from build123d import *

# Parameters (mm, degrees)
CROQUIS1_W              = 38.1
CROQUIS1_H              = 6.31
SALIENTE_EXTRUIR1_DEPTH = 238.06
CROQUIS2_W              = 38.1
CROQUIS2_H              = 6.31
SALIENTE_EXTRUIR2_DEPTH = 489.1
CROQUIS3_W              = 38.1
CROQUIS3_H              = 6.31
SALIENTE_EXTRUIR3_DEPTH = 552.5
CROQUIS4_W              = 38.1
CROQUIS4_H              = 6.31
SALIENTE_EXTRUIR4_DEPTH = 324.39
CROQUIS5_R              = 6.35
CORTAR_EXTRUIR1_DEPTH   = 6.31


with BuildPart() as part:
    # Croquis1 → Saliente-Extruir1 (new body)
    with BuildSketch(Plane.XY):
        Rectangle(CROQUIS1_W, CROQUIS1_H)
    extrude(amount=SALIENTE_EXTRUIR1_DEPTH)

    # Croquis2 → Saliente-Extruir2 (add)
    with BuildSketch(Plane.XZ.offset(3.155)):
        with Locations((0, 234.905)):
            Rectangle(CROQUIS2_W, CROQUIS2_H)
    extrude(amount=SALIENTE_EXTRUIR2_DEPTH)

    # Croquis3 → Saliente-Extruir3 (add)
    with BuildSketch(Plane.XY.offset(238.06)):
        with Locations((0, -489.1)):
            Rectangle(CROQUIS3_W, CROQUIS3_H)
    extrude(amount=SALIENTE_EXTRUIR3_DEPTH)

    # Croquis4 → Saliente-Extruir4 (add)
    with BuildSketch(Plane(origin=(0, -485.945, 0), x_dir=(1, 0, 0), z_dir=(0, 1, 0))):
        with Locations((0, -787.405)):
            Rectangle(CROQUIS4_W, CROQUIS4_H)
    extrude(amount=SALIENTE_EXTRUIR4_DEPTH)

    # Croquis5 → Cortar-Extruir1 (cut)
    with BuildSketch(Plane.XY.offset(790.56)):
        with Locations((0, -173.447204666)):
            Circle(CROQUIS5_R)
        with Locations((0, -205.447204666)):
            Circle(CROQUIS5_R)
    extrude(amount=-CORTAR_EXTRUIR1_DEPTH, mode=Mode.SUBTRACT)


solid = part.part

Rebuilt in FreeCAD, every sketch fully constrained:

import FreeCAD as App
import Part
import Sketcher

V = App.Vector
Q = App.Units.Quantity


def add_polygon(sketch, points):
    """Adds a closed chain of lines whose ends are joined by coincident constraints."""
    first, n = sketch.GeometryCount, len(points)
    for a, b in zip(points, points[1:] + points[:1]):
        sketch.addGeometry(Part.LineSegment(App.Vector(*a, 0), App.Vector(*b, 0)), False)
    for i in range(n):
        sketch.addConstraint(Sketcher.Constraint("Coincident", first + i, 2, first + (i + 1) % n, 1))

doc = App.newDocument("Part")
body = doc.addObject("PartDesign::Body", "Body")

# Sketch on XY plane
sketch1 = body.newObject("Sketcher::SketchObject", "Sketch")
sketch1.AttachmentSupport = (doc.getObject("XY_Plane"), [""])
sketch1.MapMode = "FlatFace"
add_polygon(sketch1, [(-19, 3), (-19, -3), (19, -3), (19, 3)])  # lines 0-3
sketch1.addConstraint([
    Sketcher.Constraint("Vertical", 0),
    Sketcher.Constraint("Horizontal", 1),
    Sketcher.Constraint("Vertical", 2),
    Sketcher.Constraint("Horizontal", 3),
    Sketcher.Constraint("Symmetric", 0, 2, 2, 2, -1, 1),
    Sketcher.Constraint("DistanceX", 1, 1, 1, 2, Q("38.1 mm")),
    Sketcher.Constraint("DistanceY", 0, 2, 0, 1, Q("6.31 mm")),
])
pad1 = body.newObject("PartDesign::Pad", "Pad")
pad1.Profile = sketch1
pad1.Length = 238.06

# Sketch on XZ plane
sketch2 = body.newObject("Sketcher::SketchObject", "Sketch001")
sketch2.AttachmentSupport = (doc.getObject("XZ_Plane"), [""])
sketch2.MapMode = "FlatFace"
sketch2.AttachmentOffset = App.Placement(V(0, 0, 3.155), App.Rotation())
add_polygon(sketch2, [(-19, 238), (-19, 232), (19, 232), (19, 238)])  # lines 0-3
sketch2.addConstraint([
    Sketcher.Constraint("Vertical", 0),
    Sketcher.Constraint("Horizontal", 1),
    Sketcher.Constraint("Vertical", 2),
    Sketcher.Constraint("Horizontal", 3),
    Sketcher.Constraint("DistanceX", 1, 1, 1, 2, Q("38.1 mm")),
    Sketcher.Constraint("DistanceY", 0, 2, 0, 1, Q("6.31 mm")),
    Sketcher.Constraint("DistanceX", 0, 2, -1, 1, Q("19.05 mm")),
    Sketcher.Constraint("DistanceY", -1, 1, 0, 2, Q("231.75 mm")),
])
pad2 = body.newObject("PartDesign::Pad", "Pad001")
pad2.Profile = sketch2
pad2.Length = 489.1

# Sketch on XY plane
sketch3 = body.newObject("Sketcher::SketchObject", "Sketch002")
sketch3.AttachmentSupport = (doc.getObject("XY_Plane"), [""])
sketch3.MapMode = "FlatFace"
sketch3.AttachmentOffset = App.Placement(V(0, 0, 238.06), App.Rotation())
add_polygon(sketch3, [(-19, -486), (-19, -492), (19, -492), (19, -486)])  # lines 0-3
sketch3.addConstraint([
    Sketcher.Constraint("Vertical", 0),
    Sketcher.Constraint("Horizontal", 1),
    Sketcher.Constraint("Vertical", 2),
    Sketcher.Constraint("Horizontal", 3),
    Sketcher.Constraint("DistanceX", 1, 1, 1, 2, Q("38.1 mm")),
    Sketcher.Constraint("DistanceY", 0, 2, 0, 1, Q("6.31 mm")),
    Sketcher.Constraint("DistanceX", 0, 2, -1, 1, Q("19.05 mm")),
    Sketcher.Constraint("DistanceY", 0, 2, -1, 1, Q("492.255 mm")),
])
pad3 = body.newObject("PartDesign::Pad", "Pad002")
pad3.Profile = sketch3
pad3.Length = 552.5

# Sketch on XZ plane
sketch4 = body.newObject("Sketcher::SketchObject", "Sketch003")
sketch4.AttachmentSupport = (doc.getObject("XZ_Plane"), [""])
sketch4.MapMode = "FlatFace"
sketch4.AttachmentOffset = App.Placement(V(0, 0, 485.945), App.Rotation())
add_polygon(sketch4, [(-19, 784), (-19, 791), (19, 791), (19, 784)])  # lines 0-3
sketch4.addConstraint([
    Sketcher.Constraint("Vertical", 0),
    Sketcher.Constraint("Horizontal", 1),
    Sketcher.Constraint("Vertical", 2),
    Sketcher.Constraint("Horizontal", 3),
    Sketcher.Constraint("DistanceX", 1, 1, 1, 2, Q("38.1 mm")),
    Sketcher.Constraint("DistanceY", 0, 1, 0, 2, Q("6.31 mm")),
    Sketcher.Constraint("DistanceX", 0, 2, -1, 1, Q("19.05 mm")),
    Sketcher.Constraint("DistanceY", -1, 1, 0, 2, Q("790.56 mm")),
])
pad4 = body.newObject("PartDesign::Pad", "Pad003")
pad4.Profile = sketch4
pad4.Length = 324.39
pad4.Reversed = True

# Sketch on XY plane
sketch5 = body.newObject("Sketcher::SketchObject", "Sketch004")
sketch5.AttachmentSupport = (doc.getObject("XY_Plane"), [""])
sketch5.MapMode = "FlatFace"
sketch5.AttachmentOffset = App.Placement(V(0, 0, 790.56), App.Rotation())
sketch5.addGeometry([
    Part.Circle(V(0, -173, 0), V(0, 0, 1), 6),
    Part.Circle(V(0, -205, 0), V(0, 0, 1), 6),
], False)
sketch5.addConstraint([
    Sketcher.Constraint("Equal", 0, 1),
    Sketcher.Constraint("PointOnObject", 0, 3, -2),
    Sketcher.Constraint("PointOnObject", 1, 3, -2),
    Sketcher.Constraint("Diameter", 0, Q("12.7 mm")),
    Sketcher.Constraint("DistanceY", 1, 3, 0, 3, Q("32 mm")),
    Sketcher.Constraint("DistanceY", 0, 3, -1, 1, Q("173.447205 mm")),
])
pocket1 = body.newObject("PartDesign::Pocket", "Pocket")
pocket1.Profile = sketch5
pocket1.Length = 6.31

doc.recompute()
